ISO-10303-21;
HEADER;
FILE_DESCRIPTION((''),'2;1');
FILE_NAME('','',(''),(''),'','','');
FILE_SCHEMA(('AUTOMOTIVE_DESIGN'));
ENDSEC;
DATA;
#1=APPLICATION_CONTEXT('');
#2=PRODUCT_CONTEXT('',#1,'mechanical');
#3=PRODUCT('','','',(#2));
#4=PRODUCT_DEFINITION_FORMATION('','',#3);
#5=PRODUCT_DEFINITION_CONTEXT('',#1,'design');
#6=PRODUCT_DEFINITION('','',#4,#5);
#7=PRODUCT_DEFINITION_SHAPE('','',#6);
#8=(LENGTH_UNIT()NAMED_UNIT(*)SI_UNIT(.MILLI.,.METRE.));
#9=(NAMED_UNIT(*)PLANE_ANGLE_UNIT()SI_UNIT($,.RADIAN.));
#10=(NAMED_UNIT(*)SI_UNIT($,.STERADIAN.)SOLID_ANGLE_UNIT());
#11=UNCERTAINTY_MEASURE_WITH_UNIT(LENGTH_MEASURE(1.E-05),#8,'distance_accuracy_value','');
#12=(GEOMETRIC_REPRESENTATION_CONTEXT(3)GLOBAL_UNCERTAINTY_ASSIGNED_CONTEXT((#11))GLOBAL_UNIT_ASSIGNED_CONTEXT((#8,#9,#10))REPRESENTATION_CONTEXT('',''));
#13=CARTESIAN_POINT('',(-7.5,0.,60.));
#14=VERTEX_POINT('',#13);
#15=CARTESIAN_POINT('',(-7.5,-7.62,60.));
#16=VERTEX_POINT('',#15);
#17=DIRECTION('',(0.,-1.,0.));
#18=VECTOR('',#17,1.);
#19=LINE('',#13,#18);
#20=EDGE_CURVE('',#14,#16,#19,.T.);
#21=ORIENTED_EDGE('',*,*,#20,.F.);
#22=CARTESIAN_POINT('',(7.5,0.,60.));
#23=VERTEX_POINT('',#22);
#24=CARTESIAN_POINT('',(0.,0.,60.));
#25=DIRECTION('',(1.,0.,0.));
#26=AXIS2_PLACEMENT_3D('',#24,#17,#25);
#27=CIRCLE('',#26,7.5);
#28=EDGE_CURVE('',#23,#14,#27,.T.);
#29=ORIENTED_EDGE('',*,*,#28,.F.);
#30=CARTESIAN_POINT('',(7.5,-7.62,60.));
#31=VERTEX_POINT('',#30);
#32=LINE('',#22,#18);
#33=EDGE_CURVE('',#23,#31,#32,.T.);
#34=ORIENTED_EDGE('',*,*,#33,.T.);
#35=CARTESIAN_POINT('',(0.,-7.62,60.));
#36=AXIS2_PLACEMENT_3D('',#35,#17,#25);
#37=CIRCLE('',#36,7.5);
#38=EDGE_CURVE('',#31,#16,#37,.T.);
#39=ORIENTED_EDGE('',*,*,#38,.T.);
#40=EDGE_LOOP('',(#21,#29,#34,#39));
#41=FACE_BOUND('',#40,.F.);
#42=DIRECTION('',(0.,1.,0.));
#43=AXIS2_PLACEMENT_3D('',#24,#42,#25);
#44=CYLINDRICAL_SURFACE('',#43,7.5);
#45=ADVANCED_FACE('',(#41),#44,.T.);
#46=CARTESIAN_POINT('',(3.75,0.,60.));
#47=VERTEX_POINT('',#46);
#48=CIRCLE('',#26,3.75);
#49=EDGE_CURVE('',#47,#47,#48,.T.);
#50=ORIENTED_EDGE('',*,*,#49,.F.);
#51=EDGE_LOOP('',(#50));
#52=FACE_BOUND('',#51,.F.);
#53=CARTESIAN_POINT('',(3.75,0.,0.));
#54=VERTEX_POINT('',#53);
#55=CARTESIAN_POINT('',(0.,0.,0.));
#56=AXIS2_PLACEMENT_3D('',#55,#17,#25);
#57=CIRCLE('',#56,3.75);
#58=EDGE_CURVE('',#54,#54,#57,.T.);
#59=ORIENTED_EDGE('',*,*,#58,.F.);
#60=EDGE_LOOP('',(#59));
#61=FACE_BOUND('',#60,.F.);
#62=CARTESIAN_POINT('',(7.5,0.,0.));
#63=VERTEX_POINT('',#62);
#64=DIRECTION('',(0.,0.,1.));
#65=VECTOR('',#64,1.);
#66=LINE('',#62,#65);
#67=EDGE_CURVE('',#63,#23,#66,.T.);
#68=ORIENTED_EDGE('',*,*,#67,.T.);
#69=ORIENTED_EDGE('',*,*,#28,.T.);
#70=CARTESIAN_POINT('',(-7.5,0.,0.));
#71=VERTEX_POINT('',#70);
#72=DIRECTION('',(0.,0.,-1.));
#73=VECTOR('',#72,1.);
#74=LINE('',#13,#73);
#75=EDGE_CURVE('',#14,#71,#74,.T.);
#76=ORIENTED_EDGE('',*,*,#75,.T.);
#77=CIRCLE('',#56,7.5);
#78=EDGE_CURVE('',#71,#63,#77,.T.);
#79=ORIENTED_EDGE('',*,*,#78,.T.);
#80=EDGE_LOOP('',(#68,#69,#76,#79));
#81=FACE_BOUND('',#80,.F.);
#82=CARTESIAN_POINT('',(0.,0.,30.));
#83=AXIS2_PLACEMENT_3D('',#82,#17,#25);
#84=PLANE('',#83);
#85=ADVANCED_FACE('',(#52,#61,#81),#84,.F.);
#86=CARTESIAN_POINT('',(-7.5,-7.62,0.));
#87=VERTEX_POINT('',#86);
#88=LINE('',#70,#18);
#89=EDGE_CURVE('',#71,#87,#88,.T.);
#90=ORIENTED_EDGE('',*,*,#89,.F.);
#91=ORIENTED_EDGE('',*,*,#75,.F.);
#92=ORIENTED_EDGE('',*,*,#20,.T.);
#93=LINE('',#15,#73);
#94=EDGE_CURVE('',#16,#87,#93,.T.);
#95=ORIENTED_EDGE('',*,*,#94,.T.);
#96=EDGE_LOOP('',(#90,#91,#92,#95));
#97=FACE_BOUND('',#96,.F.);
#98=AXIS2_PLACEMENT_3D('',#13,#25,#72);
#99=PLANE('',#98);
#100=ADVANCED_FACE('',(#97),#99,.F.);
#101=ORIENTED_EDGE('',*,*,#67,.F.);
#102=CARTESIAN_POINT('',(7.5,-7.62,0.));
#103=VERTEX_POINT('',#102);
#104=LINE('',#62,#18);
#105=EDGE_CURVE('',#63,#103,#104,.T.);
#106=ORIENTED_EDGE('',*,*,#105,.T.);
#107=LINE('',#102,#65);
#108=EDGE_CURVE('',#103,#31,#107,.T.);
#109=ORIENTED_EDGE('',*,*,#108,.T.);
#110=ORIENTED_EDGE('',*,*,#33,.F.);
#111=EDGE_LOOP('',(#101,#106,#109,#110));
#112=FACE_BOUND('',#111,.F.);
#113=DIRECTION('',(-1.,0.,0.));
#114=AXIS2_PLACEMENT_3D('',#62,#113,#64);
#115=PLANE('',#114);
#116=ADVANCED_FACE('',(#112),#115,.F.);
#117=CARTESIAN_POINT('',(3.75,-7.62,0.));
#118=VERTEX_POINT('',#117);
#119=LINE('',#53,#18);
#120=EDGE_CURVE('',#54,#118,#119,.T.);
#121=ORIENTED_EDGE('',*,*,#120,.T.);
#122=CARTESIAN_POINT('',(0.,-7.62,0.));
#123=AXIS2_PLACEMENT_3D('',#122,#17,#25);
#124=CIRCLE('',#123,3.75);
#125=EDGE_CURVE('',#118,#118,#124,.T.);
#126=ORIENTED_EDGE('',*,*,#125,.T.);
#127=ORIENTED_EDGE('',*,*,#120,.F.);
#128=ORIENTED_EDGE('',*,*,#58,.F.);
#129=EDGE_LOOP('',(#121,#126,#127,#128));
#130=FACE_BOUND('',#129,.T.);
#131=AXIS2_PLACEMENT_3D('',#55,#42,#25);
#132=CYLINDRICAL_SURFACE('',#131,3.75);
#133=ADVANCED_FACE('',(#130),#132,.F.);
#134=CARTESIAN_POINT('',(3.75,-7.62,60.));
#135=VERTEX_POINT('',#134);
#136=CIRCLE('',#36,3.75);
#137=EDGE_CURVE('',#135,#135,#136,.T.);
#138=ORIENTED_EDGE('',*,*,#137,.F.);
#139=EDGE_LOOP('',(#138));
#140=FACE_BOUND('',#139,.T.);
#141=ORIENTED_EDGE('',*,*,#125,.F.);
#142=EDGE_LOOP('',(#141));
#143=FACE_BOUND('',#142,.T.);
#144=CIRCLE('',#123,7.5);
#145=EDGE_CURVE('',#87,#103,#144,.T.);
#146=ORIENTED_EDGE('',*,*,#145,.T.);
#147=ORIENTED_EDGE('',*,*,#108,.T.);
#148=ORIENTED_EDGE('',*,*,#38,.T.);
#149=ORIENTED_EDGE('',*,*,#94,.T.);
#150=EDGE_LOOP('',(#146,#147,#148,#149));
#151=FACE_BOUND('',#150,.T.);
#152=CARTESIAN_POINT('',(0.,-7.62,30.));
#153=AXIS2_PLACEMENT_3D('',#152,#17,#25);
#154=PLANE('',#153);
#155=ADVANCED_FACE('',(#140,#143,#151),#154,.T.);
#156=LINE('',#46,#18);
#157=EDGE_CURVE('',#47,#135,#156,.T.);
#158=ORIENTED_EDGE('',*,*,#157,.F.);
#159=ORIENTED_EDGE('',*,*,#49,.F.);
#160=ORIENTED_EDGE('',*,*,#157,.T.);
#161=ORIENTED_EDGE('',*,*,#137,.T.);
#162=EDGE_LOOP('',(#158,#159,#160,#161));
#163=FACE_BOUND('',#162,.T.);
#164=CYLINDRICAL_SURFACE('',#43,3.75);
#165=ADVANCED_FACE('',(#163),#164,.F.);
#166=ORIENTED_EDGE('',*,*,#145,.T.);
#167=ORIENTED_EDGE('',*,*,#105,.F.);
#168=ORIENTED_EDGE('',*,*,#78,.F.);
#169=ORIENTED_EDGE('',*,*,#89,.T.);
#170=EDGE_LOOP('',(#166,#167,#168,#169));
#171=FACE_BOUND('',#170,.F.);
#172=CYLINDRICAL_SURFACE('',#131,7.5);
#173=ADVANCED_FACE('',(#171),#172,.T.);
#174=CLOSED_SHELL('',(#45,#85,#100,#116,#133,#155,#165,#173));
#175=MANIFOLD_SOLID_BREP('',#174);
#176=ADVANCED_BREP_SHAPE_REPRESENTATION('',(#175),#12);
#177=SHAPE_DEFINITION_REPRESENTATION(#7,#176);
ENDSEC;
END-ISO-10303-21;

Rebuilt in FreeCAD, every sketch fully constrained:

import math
import FreeCAD as App
import Part
import Sketcher

V = App.Vector
Q = App.Units.Quantity

doc = App.newDocument("Part")
body = doc.addObject("PartDesign::Body", "Body")

sketch1 = doc.addObject("Sketcher::SketchObject", "Sketch")
body.addObject(sketch1)
sketch1.AttachmentSupport = (doc.XZ_Plane, [""])
sketch1.MapMode = "FlatFace"
sketch1.addGeometry(Part.LineSegment(V(7.5, 0, 0), V(7.5, 60, 0)), False)
sketch1.addGeometry(Part.ArcOfCircle(Part.Circle(V(0, 60, 0), V(0, 0, 1), 7.5), math.radians(0), math.radians(180)), False)
sketch1.addGeometry(Part.LineSegment(V(-7.5, 60, 0), V(-7.5, 0, 0)), False)
sketch1.addGeometry(Part.ArcOfCircle(Part.Circle(V(0, 0, 0), V(0, 0, 1), 7.5), math.radians(180), math.radians(360)), False)
sketch1.addGeometry(Part.Circle(V(0, 0, 0), V(0, 0, 1), 3.75), False)
sketch1.addGeometry(Part.Circle(V(0, 60, 0), V(0, 0, 1), 3.75), False)
sketch1.addConstraint(Sketcher.Constraint("Tangent", 0, 2, 1, 1))
sketch1.addConstraint(Sketcher.Constraint("Tangent", 1, 2, 2, 1))
sketch1.addConstraint(Sketcher.Constraint("Tangent", 2, 2, 3, 1))
sketch1.addConstraint(Sketcher.Constraint("Tangent", 3, 2, 0, 1))
sketch1.addConstraint(Sketcher.Constraint("Vertical", 0))
sketch1.addConstraint(Sketcher.Constraint("Vertical", 2))
sketch1.addConstraint(Sketcher.Constraint("Coincident", 3, 3, -1, 1))
sketch1.addConstraint(Sketcher.Constraint("Coincident", 4, 3, -1, 1))
sketch1.addConstraint(Sketcher.Constraint("Coincident", 5, 3, 1, 3))
sketch1.addConstraint(Sketcher.Constraint("Equal", 4, 5))
sketch1.addConstraint(Sketcher.Constraint("Diameter", 4, Q("7.5 mm")))
sketch1.addConstraint(Sketcher.Constraint("Radius", 1, Q("7.5 mm")))
sketch1.addConstraint(Sketcher.Constraint("DistanceY", 0, 1, 0, 2, Q("60 mm")))
pad1 = doc.addObject("PartDesign::Pad", "Pad")
body.addObject(pad1)
pad1.Profile = sketch1
pad1.Length = 7.62

doc.recompute()
